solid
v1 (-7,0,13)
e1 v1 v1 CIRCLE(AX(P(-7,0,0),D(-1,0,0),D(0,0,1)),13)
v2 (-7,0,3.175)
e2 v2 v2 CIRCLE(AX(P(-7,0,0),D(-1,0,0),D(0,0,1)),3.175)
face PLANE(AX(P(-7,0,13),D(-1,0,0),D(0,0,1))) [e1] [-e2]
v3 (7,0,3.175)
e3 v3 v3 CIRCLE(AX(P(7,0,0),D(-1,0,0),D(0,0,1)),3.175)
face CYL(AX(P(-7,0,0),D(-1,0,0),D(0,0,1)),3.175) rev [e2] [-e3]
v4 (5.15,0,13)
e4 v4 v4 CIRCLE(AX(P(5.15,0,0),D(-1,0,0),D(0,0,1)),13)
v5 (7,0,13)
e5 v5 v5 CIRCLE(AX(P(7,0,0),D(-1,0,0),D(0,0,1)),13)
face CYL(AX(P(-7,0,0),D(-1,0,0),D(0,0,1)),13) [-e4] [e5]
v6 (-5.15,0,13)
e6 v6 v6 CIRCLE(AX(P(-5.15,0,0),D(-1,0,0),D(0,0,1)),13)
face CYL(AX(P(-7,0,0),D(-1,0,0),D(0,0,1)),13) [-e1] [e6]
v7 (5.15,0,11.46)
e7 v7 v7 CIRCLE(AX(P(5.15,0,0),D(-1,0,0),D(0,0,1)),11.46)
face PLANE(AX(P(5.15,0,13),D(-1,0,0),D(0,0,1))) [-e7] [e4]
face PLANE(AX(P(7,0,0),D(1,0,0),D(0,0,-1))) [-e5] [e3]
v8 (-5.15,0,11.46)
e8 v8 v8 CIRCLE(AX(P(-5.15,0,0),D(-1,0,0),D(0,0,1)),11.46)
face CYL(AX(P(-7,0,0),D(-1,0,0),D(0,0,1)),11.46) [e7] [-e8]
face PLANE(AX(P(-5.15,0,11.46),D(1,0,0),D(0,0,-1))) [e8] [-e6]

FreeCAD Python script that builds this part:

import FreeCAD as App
import Part
import Sketcher
from FreeCAD import Vector
Q = App.Units.Quantity

doc = App.newDocument("Part")
body = doc.addObject("PartDesign::Body", "Body")

sketch1 = body.newObject("Sketcher::SketchObject", "Sketch")
sketch1.AttachmentSupport = (doc.getObject("XZ_Plane"), [""])
sketch1.MapMode = "FlatFace"
sketch1.addGeometry([
    Part.LineSegment(Vector(-5.2, 11.5, 0), Vector(5.2, 11.5, 0)),
    Part.LineSegment(Vector(5.2, 11.5, 0), Vector(5.2, 13, 0)),
    Part.LineSegment(Vector(5.2, 13, 0), Vector(7, 13, 0)),
    Part.LineSegment(Vector(7, 13, 0), Vector(7, 0, 0)),
    Part.LineSegment(Vector(7, 0, 0), Vector(-7, 0, 0)),
    Part.LineSegment(Vector(-7, 0, 0), Vector(-7, 13, 0)),
    Part.LineSegment(Vector(-7, 13, 0), Vector(-5.2, 13, 0)),
    Part.LineSegment(Vector(-5.2, 13, 0), Vector(-5.2, 11.5, 0)),
], False)
sketch1.addConstraint([
    Sketcher.Constraint("Coincident", 0, 2, 1, 1),
    Sketcher.Constraint("Coincident", 1, 2, 2, 1),
    Sketcher.Constraint("Coincident", 2, 2, 3, 1),
    Sketcher.Constraint("Coincident", 3, 2, 4, 1),
    Sketcher.Constraint("Coincident", 4, 2, 5, 1),
    Sketcher.Constraint("Coincident", 5, 2, 6, 1),
    Sketcher.Constraint("Coincident", 6, 2, 7, 1),
    Sketcher.Constraint("Coincident", 7, 2, 0, 1),
    Sketcher.Constraint("Horizontal", 0),
    Sketcher.Constraint("Vertical", 1),
    Sketcher.Constraint("Horizontal", 2),
    Sketcher.Constraint("Vertical", 3),
    Sketcher.Constraint("Horizontal", 4),
    Sketcher.Constraint("Vertical", 5),
    Sketcher.Constraint("Horizontal", 6),
    Sketcher.Constraint("Vertical", 7),
    Sketcher.Constraint("Symmetric", 3, 2, 4, 2, -1, 1),
    Sketcher.Constraint("Symmetric", 1, 2, 6, 2, -2),
    Sketcher.Constraint("DistanceX", 4, 2, 4, 1, Q("14 mm")),
    Sketcher.Constraint("DistanceY", 3, 2, 3, 1, Q("13 mm")),
    Sketcher.Constraint("DistanceX", 0, 1, 0, 2, Q("10.3 mm")),
    Sketcher.Constraint("DistanceY", 1, 1, 1, 2, Q("1.54 mm")),
])
revolution = body.newObject("PartDesign::Revolution", "Revolution")
revolution.Profile = sketch1
revolution.ReferenceAxis = (sketch1, ["H_Axis"])
revolution.Angle = 360

sketch2 = body.newObject("Sketcher::SketchObject", "Sketch001")
sketch2.AttachmentSupport = (doc.getObject("YZ_Plane"), [""])
sketch2.MapMode = "FlatFace"
sketch2.AttachmentOffset = App.Placement(Vector(0, 0, -7), App.Rotation())
sketch2.addGeometry(Part.Circle(Vector(0, 0, 0), Vector(0, 0, 1), 3.2), False)
sketch2.addConstraint([
    Sketcher.Constraint("Coincident", 0, 3, -1, 1),
    Sketcher.Constraint("Diameter", 0, Q("6.35 mm")),
])
doc.recompute()
hole = body.newObject("PartDesign::Hole", "Hole")
hole.Profile = sketch2
hole.ThreadType = "None"
hole.Diameter = 6.35
hole.DepthType = "ThroughAll"
hole.Reversed = True

doc.recompute()
